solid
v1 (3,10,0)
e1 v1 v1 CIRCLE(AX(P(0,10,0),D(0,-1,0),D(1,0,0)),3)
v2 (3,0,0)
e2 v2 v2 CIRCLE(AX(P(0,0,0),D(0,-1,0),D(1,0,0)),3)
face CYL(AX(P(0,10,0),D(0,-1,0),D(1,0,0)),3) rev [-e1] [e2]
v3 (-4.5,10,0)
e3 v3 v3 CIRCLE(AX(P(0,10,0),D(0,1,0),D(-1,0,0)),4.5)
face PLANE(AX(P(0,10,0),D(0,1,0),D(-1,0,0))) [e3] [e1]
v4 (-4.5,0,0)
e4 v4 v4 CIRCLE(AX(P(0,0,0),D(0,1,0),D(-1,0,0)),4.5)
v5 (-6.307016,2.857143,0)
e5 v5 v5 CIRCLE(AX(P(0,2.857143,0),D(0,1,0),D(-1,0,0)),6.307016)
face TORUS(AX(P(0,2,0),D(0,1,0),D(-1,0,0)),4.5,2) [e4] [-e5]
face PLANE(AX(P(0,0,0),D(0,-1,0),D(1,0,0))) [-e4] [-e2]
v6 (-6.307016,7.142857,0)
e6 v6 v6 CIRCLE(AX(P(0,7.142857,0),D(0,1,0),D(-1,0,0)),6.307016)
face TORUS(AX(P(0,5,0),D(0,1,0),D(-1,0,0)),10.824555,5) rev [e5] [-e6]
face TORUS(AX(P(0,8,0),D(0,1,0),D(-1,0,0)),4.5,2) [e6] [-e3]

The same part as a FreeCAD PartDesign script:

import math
import FreeCAD as App
import Part
import Sketcher
Q = App.Units.Quantity

doc = App.newDocument("Part")
body = doc.addObject("PartDesign::Body", "Body")

sketch1 = body.newObject("Sketcher::SketchObject", "Sketch")
sketch1.AttachmentSupport = (doc.getObject("XY_Plane"), [""])
sketch1.MapMode = "FlatFace"
sketch1.addGeometry([
    Part.LineSegment(App.Vector(-4.5, 0, 0), App.Vector(0, 0, 0)),
    Part.LineSegment(App.Vector(0, 0, 0), App.Vector(0, 10, 0)),
    Part.LineSegment(App.Vector(0, 10, 0), App.Vector(-4.5, 10, 0)),
    Part.ArcOfCircle(Part.Circle(App.Vector(-4.5, 8, 0), App.Vector(0, 0, 1), 2), math.radians(90), math.radians(205.376934)),
    Part.ArcOfCircle(Part.Circle(App.Vector(-10.824555, 5, 0), App.Vector(0, 0, 1), 5), math.radians(-25.376934), math.radians(25.376934)),
    Part.ArcOfCircle(Part.Circle(App.Vector(-4.5, 2, 0), App.Vector(0, 0, 1), 2), math.radians(154.623066), math.radians(270)),
], False)
sketch1.addConstraint([
    Sketcher.Constraint("Coincident", 0, 2, 1, 1),
    Sketcher.Constraint("Coincident", 1, 2, 2, 1),
    Sketcher.Constraint("Tangent", 2, 2, 3, 1),
    Sketcher.Constraint("Tangent", 3, 2, 4, 2),
    Sketcher.Constraint("Tangent", 4, 1, 5, 1),
    Sketcher.Constraint("Tangent", 5, 2, 0, 1),
    Sketcher.Constraint("Horizontal", 0),
    Sketcher.Constraint("Vertical", 1),
    Sketcher.Constraint("Horizontal", 2),
    Sketcher.Constraint("Coincident", 0, 2, -1, 1),
    Sketcher.Constraint("Equal", 3, 5),
    Sketcher.Constraint("Vertical", 3, 3, 5, 3),
    Sketcher.Constraint("Radius", 3, Q("2 mm")),
    Sketcher.Constraint("Radius", 4, Q("5 mm")),
    Sketcher.Constraint("DistanceY", 1, 1, 1, 2, Q("10 mm")),
    Sketcher.Constraint("DistanceX", 0, 1, 0, 2, Q("4.5 mm")),
])
revolution = body.newObject("PartDesign::Revolution", "Revolution")
revolution.Profile = sketch1
revolution.ReferenceAxis = (sketch1, ["V_Axis"])
revolution.Angle = 360

sketch2 = body.newObject("Sketcher::SketchObject", "Sketch001")
sketch2.AttachmentSupport = (doc.getObject("XZ_Plane"), [""])
sketch2.MapMode = "FlatFace"
sketch2.addGeometry(Part.Circle(App.Vector(0, 0, 0), App.Vector(0, 0, 1), 3), False)
sketch2.addConstraint([
    Sketcher.Constraint("Coincident", 0, 3, -1, 1),
    Sketcher.Constraint("Diameter", 0, Q("6 mm")),
])
pocket1 = body.newObject("PartDesign::Pocket", "Pocket")
pocket1.Profile = sketch2
pocket1.Type = "ThroughAll"

doc.recompute()
